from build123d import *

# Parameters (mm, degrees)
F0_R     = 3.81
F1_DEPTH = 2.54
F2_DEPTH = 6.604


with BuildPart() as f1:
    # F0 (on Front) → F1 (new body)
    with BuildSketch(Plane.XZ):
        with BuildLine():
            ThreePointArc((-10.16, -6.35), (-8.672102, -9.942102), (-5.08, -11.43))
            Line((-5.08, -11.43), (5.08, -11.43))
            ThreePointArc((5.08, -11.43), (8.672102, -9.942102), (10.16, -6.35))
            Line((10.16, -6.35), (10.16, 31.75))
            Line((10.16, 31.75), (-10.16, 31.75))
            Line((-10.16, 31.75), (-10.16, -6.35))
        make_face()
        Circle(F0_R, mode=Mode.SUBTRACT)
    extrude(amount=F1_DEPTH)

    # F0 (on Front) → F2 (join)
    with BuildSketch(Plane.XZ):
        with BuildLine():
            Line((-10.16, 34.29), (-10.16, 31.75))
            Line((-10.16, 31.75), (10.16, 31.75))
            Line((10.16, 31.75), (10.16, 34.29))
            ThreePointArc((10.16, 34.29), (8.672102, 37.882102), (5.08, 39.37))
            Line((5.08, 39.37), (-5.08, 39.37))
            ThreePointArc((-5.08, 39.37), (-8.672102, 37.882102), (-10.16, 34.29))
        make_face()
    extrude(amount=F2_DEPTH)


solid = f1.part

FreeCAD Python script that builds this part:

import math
import FreeCAD as App
import Part
import Sketcher
from FreeCAD import Vector
Q = App.Units.Quantity

doc = App.newDocument("Part")
body = doc.addObject("PartDesign::Body", "Body")

# Sketch on XZ plane
sketch1 = body.newObject("Sketcher::SketchObject", "Sketch")
sketch1.AttachmentSupport = (doc.getObject("XZ_Plane"), [""])
sketch1.MapMode = "FlatFace"
sketch1.addGeometry(Part.ArcOfCircle(Part.Circle(Vector(-5.1, -6.3, 0), Vector(0, 0, 1), 5.1), math.radians(-180), math.radians(-90)), False)
sketch1.addGeometry(Part.LineSegment(Vector(-5.1, -11.4, 0), Vector(5.1, -11.4, 0)), False)
sketch1.addGeometry(Part.ArcOfCircle(Part.Circle(Vector(5.1, -6.3, 0), Vector(0, 0, 1), 5.1), math.radians(-90), math.radians(0)), False)
sketch1.addGeometry(Part.LineSegment(Vector(10.2, -6.3, 0), Vector(10.2, 31.8, 0)), False)
sketch1.addGeometry(Part.LineSegment(Vector(10.2, 31.8, 0), Vector(-10.2, 31.8, 0)), False)
sketch1.addGeometry(Part.LineSegment(Vector(-10.2, 31.8, 0), Vector(-10.2, -6.3, 0)), False)
sketch1.addGeometry(Part.Circle(Vector(0, 0, 0), Vector(0, 0, 1), 3.8), False)
sketch1.addConstraint(Sketcher.Constraint("Tangent", 0, 2, 1, 1))
sketch1.addConstraint(Sketcher.Constraint("Tangent", 1, 2, 2, 1))
sketch1.addConstraint(Sketcher.Constraint("Tangent", 2, 2, 3, 1))
sketch1.addConstraint(Sketcher.Constraint("Coincident", 3, 2, 4, 1))
sketch1.addConstraint(Sketcher.Constraint("Coincident", 4, 2, 5, 1))
sketch1.addConstraint(Sketcher.Constraint("Tangent", 5, 2, 0, 1))
sketch1.addConstraint(Sketcher.Constraint("Horizontal", 1))
sketch1.addConstraint(Sketcher.Constraint("Vertical", 3))
sketch1.addConstraint(Sketcher.Constraint("Horizontal", 4))
sketch1.addConstraint(Sketcher.Constraint("Vertical", 5))
sketch1.addConstraint(Sketcher.Constraint("Coincident", 6, 3, -1, 1))
sketch1.addConstraint(Sketcher.Constraint("Equal", 0, 2))
sketch1.addConstraint(Sketcher.Constraint("Diameter", 6, Q("0.3 in")))
sketch1.addConstraint(Sketcher.Constraint("Radius", 0, Q("0.2000001 in")))
sketch1.addConstraint(Sketcher.Constraint("DistanceX", 1, 1, 1, 2, Q("0.4 in")))
sketch1.addConstraint(Sketcher.Constraint("DistanceY", 3, 1, 3, 2, Q("1.5 in")))
sketch1.addConstraint(Sketcher.Constraint("DistanceX", 0, 3, -1, 1, Q("0.1999999 in")))
sketch1.addConstraint(Sketcher.Constraint("DistanceY", 0, 3, -1, 1, Q("0.2499999 in")))
pad1 = body.newObject("PartDesign::Pad", "Pad")
pad1.Profile = sketch1
pad1.Length = Q("0.1 in")

# Sketch on XZ plane
sketch2 = body.newObject("Sketcher::SketchObject", "Sketch001")
sketch2.AttachmentSupport = (doc.getObject("XZ_Plane"), [""])
sketch2.MapMode = "FlatFace"
sketch2.addGeometry(Part.LineSegment(Vector(-10.2, 34.3, 0), Vector(-10.2, 31.8, 0)), False)
sketch2.addGeometry(Part.LineSegment(Vector(-10.2, 31.8, 0), Vector(10.2, 31.8, 0)), False)
sketch2.addGeometry(Part.LineSegment(Vector(10.2, 31.8, 0), Vector(10.2, 34.3, 0)), False)
sketch2.addGeometry(Part.ArcOfCircle(Part.Circle(Vector(5.1, 34.3, 0), Vector(0, 0, 1), 5.1), math.radians(0), math.radians(90)), False)
sketch2.addGeometry(Part.LineSegment(Vector(5.1, 39.4, 0), Vector(-5.1, 39.4, 0)), False)
sketch2.addGeometry(Part.ArcOfCircle(Part.Circle(Vector(-5.1, 34.3, 0), Vector(0, 0, 1), 5.1), math.radians(90), math.radians(180)), False)
sketch2.addConstraint(Sketcher.Constraint("Coincident", 0, 2, 1, 1))
sketch2.addConstraint(Sketcher.Constraint("Coincident", 1, 2, 2, 1))
sketch2.addConstraint(Sketcher.Constraint("Tangent", 2, 2, 3, 1))
sketch2.addConstraint(Sketcher.Constraint("Tangent", 3, 2, 4, 1))
sketch2.addConstraint(Sketcher.Constraint("Tangent", 4, 2, 5, 1))
sketch2.addConstraint(Sketcher.Constraint("Tangent", 5, 2, 0, 1))
sketch2.addConstraint(Sketcher.Constraint("Vertical", 0))
sketch2.addConstraint(Sketcher.Constraint("Horizontal", 1))
sketch2.addConstraint(Sketcher.Constraint("Vertical", 2))
sketch2.addConstraint(Sketcher.Constraint("Horizontal", 4))
sketch2.addConstraint(Sketcher.Constraint("Equal", 3, 5))
sketch2.addConstraint(Sketcher.Constraint("Radius", 3, Q("0.2000001 in")))
sketch2.addConstraint(Sketcher.Constraint("DistanceX", 1, 1, 1, 2, Q("0.8 in")))
sketch2.addConstraint(Sketcher.Constraint("DistanceY", 0, 2, 0, 1, Q("0.1 in")))
sketch2.addConstraint(Sketcher.Constraint("DistanceX", -1, 1, 3, 3, Q("0.1999999 in")))
sketch2.addConstraint(Sketcher.Constraint("DistanceY", -1, 1, 3, 3, Q("1.3499999 in")))
pad2 = body.newObject("PartDesign::Pad", "Pad001")
pad2.Profile = sketch2
pad2.Length = Q("0.26 in")

doc.recompute()
